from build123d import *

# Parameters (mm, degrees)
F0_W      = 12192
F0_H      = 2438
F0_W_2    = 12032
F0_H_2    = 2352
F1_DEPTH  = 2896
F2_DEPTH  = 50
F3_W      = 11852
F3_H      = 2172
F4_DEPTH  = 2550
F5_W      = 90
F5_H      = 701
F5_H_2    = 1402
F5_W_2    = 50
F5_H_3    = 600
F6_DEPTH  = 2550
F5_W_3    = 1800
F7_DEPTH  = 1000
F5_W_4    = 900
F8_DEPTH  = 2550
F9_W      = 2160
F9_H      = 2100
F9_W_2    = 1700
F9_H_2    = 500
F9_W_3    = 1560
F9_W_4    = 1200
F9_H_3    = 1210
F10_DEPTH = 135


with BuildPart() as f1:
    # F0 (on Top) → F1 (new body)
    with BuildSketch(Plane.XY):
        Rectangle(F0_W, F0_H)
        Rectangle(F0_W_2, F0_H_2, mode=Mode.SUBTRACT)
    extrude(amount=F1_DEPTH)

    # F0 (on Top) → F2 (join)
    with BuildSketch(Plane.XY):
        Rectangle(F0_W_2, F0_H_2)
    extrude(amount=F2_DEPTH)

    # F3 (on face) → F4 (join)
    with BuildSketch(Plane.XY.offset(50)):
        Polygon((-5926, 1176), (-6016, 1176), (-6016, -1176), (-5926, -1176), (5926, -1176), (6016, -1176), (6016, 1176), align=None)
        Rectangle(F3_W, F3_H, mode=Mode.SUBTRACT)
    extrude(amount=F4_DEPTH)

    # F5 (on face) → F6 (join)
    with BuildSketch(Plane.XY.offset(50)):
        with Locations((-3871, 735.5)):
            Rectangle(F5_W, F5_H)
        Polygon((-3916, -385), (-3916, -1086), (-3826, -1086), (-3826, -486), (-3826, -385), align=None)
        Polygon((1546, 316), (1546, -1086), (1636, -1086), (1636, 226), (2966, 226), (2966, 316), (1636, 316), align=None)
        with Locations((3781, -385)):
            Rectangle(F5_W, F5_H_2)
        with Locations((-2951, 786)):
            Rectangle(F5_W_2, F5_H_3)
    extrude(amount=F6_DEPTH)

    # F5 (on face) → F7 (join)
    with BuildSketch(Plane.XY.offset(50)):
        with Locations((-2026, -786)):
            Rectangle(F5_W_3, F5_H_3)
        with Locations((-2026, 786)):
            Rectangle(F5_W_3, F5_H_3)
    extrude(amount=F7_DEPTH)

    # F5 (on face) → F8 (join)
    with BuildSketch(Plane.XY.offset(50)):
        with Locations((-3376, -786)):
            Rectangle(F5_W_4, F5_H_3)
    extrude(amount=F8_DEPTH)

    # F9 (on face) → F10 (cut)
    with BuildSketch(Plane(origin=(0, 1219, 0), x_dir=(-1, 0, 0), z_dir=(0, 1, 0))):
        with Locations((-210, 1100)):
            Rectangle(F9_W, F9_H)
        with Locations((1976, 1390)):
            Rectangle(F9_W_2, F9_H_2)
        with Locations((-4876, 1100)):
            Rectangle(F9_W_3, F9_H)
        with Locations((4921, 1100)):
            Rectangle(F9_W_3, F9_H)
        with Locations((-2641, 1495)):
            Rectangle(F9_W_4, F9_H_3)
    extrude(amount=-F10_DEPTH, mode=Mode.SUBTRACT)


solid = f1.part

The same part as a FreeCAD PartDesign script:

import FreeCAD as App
import Part
import Sketcher
from FreeCAD import Vector
Q = App.Units.Quantity

doc = App.newDocument("Part")
body = doc.addObject("PartDesign::Body", "Body")

sketch1 = body.newObject("Sketcher::SketchObject", "Sketch")
sketch1.AttachmentSupport = (doc.getObject("XY_Plane"), [""])
sketch1.MapMode = "FlatFace"
sketch1.addGeometry([
    Part.LineSegment(Vector(-6096, 1219, 0), Vector(-6096, -1219, 0)),
    Part.LineSegment(Vector(-6096, -1219, 0), Vector(6096, -1219, 0)),
    Part.LineSegment(Vector(6096, -1219, 0), Vector(6096, 1219, 0)),
    Part.LineSegment(Vector(6096, 1219, 0), Vector(-6096, 1219, 0)),
    Part.LineSegment(Vector(6016, -1176, 0), Vector(-6016, -1176, 0)),
    Part.LineSegment(Vector(-6016, -1176, 0), Vector(-6016, 1176, 0)),
    Part.LineSegment(Vector(-6016, 1176, 0), Vector(6016, 1176, 0)),
    Part.LineSegment(Vector(6016, 1176, 0), Vector(6016, -1176, 0)),
], False)
sketch1.addConstraint([
    Sketcher.Constraint("Coincident", 0, 2, 1, 1),
    Sketcher.Constraint("Coincident", 1, 2, 2, 1),
    Sketcher.Constraint("Coincident", 2, 2, 3, 1),
    Sketcher.Constraint("Coincident", 3, 2, 0, 1),
    Sketcher.Constraint("Coincident", 4, 2, 5, 1),
    Sketcher.Constraint("Coincident", 5, 2, 6, 1),
    Sketcher.Constraint("Coincident", 6, 2, 7, 1),
    Sketcher.Constraint("Coincident", 7, 2, 4, 1),
    Sketcher.Constraint("Vertical", 0),
    Sketcher.Constraint("Horizontal", 1),
    Sketcher.Constraint("Vertical", 2),
    Sketcher.Constraint("Horizontal", 3),
    Sketcher.Constraint("Horizontal", 4),
    Sketcher.Constraint("Vertical", 5),
    Sketcher.Constraint("Horizontal", 6),
    Sketcher.Constraint("Vertical", 7),
    Sketcher.Constraint("Symmetric", 0, 2, 2, 2, -1, 1),
    Sketcher.Constraint("Symmetric", 4, 2, 6, 2, -1, 1),
    Sketcher.Constraint("DistanceX", 1, 1, 1, 2, Q("12192 mm")),
    Sketcher.Constraint("DistanceX", 4, 2, 4, 1, Q("12032 mm")),
    Sketcher.Constraint("DistanceY", 0, 2, 0, 1, Q("2438 mm")),
    Sketcher.Constraint("DistanceY", 5, 1, 5, 2, Q("2352 mm")),
])
pad1 = body.newObject("PartDesign::Pad", "Pad")
pad1.Profile = sketch1
pad1.Length = 2896

sketch2 = body.newObject("Sketcher::SketchObject", "Sketch001")
sketch2.AttachmentSupport = (doc.getObject("XY_Plane"), [""])
sketch2.MapMode = "FlatFace"
sketch2.addGeometry([
    Part.LineSegment(Vector(-6016, 1176, 0), Vector(-6016, -1176, 0)),
    Part.LineSegment(Vector(-6016, -1176, 0), Vector(6016, -1176, 0)),
    Part.LineSegment(Vector(6016, -1176, 0), Vector(6016, 1176, 0)),
    Part.LineSegment(Vector(6016, 1176, 0), Vector(-6016, 1176, 0)),
], False)
sketch2.addConstraint([
    Sketcher.Constraint("Coincident", 0, 2, 1, 1),
    Sketcher.Constraint("Coincident", 1, 2, 2, 1),
    Sketcher.Constraint("Coincident", 2, 2, 3, 1),
    Sketcher.Constraint("Coincident", 3, 2, 0, 1),
    Sketcher.Constraint("Vertical", 0),
    Sketcher.Constraint("Horizontal", 1),
    Sketcher.Constraint("Vertical", 2),
    Sketcher.Constraint("Horizontal", 3),
    Sketcher.Constraint("Symmetric", 0, 2, 2, 2, -1, 1),
    Sketcher.Constraint("DistanceX", 1, 1, 1, 2, Q("12032 mm")),
    Sketcher.Constraint("DistanceY", 0, 2, 0, 1, Q("2352 mm")),
])
pad2 = body.newObject("PartDesign::Pad", "Pad001")
pad2.Profile = sketch2
pad2.Length = 50

sketch3 = body.newObject("Sketcher::SketchObject", "Sketch002")
sketch3.AttachmentSupport = (doc.getObject("XY_Plane"), [""])
sketch3.MapMode = "FlatFace"
sketch3.AttachmentOffset = App.Placement(Vector(0, 0, 50), App.Rotation())
sketch3.addGeometry([
    Part.LineSegment(Vector(-6016, 1176, 0), Vector(-6016, -1176, 0)),
    Part.LineSegment(Vector(-6016, -1176, 0), Vector(6016, -1176, 0)),
    Part.LineSegment(Vector(6016, -1176, 0), Vector(6016, 1176, 0)),
    Part.LineSegment(Vector(6016, 1176, 0), Vector(-6016, 1176, 0)),
    Part.LineSegment(Vector(5926, -1086, 0), Vector(-5926, -1086, 0)),
    Part.LineSegment(Vector(-5926, -1086, 0), Vector(-5926, 1086, 0)),
    Part.LineSegment(Vector(-5926, 1086, 0), Vector(5926, 1086, 0)),
    Part.LineSegment(Vector(5926, 1086, 0), Vector(5926, -1086, 0)),
], False)
sketch3.addConstraint([
    Sketcher.Constraint("Coincident", 0, 2, 1, 1),
    Sketcher.Constraint("Coincident", 1, 2, 2, 1),
    Sketcher.Constraint("Coincident", 2, 2, 3, 1),
    Sketcher.Constraint("Coincident", 3, 2, 0, 1),
    Sketcher.Constraint("Coincident", 4, 2, 5, 1),
    Sketcher.Constraint("Coincident", 5, 2, 6, 1),
    Sketcher.Constraint("Coincident", 6, 2, 7, 1),
    Sketcher.Constraint("Coincident", 7, 2, 4, 1),
    Sketcher.Constraint("Vertical", 0),
    Sketcher.Constraint("Horizontal", 1),
    Sketcher.Constraint("Vertical", 2),
    Sketcher.Constraint("Horizontal", 3),
    Sketcher.Constraint("Horizontal", 4),
    Sketcher.Constraint("Vertical", 5),
    Sketcher.Constraint("Horizontal", 6),
    Sketcher.Constraint("Vertical", 7),
    Sketcher.Constraint("Symmetric", 0, 2, 2, 2, -1, 1),
    Sketcher.Constraint("Symmetric", 4, 2, 6, 2, -1, 1),
    Sketcher.Constraint("DistanceX", 1, 1, 1, 2, Q("12032 mm")),
    Sketcher.Constraint("DistanceX", 4, 2, 4, 1, Q("11852 mm")),
    Sketcher.Constraint("DistanceY", 0, 2, 0, 1, Q("2352 mm")),
    Sketcher.Constraint("DistanceY", 5, 1, 5, 2, Q("2172 mm")),
])
pad3 = body.newObject("PartDesign::Pad", "Pad002")
pad3.Profile = sketch3
pad3.Length = 2550

sketch4 = body.newObject("Sketcher::SketchObject", "Sketch003")
sketch4.AttachmentSupport = (doc.getObject("XY_Plane"), [""])
sketch4.MapMode = "FlatFace"
sketch4.AttachmentOffset = App.Placement(Vector(0, 0, 50), App.Rotation())
sketch4.addGeometry([
    Part.LineSegment(Vector(-3916, 1086, 0), Vector(-3916, 385, 0)),
    Part.LineSegment(Vector(-3916, 385, 0), Vector(-3826, 385, 0)),
    Part.LineSegment(Vector(-3826, 385, 0), Vector(-3826, 1086, 0)),
    Part.LineSegment(Vector(-3826, 1086, 0), Vector(-3916, 1086, 0)),
    Part.LineSegment(Vector(-3916, -385, 0), Vector(-3916, -1086, 0)),
    Part.LineSegment(Vector(-3916, -1086, 0), Vector(-3826, -1086, 0)),
    Part.LineSegment(Vector(-3826, -1086, 0), Vector(-3826, -385, 0)),
    Part.LineSegment(Vector(-3826, -385, 0), Vector(-3916, -385, 0)),
    Part.LineSegment(Vector(1546, 316, 0), Vector(1546, -1086, 0)),
    Part.LineSegment(Vector(1546, -1086, 0), Vector(1636, -1086, 0)),
    Part.LineSegment(Vector(1636, -1086, 0), Vector(1636, 226, 0)),
    Part.LineSegment(Vector(1636, 226, 0), Vector(2966, 226, 0)),
    Part.LineSegment(Vector(2966, 226, 0), Vector(2966, 316, 0)),
    Part.LineSegment(Vector(2966, 316, 0), Vector(1546, 316, 0)),
    Part.LineSegment(Vector(3736, 316, 0), Vector(3736, -1086, 0)),
    Part.LineSegment(Vector(3736, -1086, 0), Vector(3826, -1086, 0)),
    Part.LineSegment(Vector(3826, -1086, 0), Vector(3826, 316, 0)),
    Part.LineSegment(Vector(3826, 316, 0), Vector(3736, 316, 0)),
    Part.LineSegment(Vector(-2976, 1086, 0), Vector(-2976, 486, 0)),
    Part.LineSegment(Vector(-2976, 486, 0), Vector(-2926, 486, 0)),
    Part.LineSegment(Vector(-2926, 486, 0), Vector(-2926, 1086, 0)),
    Part.LineSegment(Vector(-2926, 1086, 0), Vector(-2976, 1086, 0)),
], False)
sketch4.addConstraint([
    Sketcher.Constraint("Coincident", 0, 2, 1, 1),
    Sketcher.Constraint("Coincident", 1, 2, 2, 1),
    Sketcher.Constraint("Coincident", 2, 2, 3, 1),
    Sketcher.Constraint("Coincident", 3, 2, 0, 1),
    Sketcher.Constraint("Coincident", 4, 2, 5, 1),
    Sketcher.Constraint("Coincident", 5, 2, 6, 1),
    Sketcher.Constraint("Coincident", 6, 2, 7, 1),
    Sketcher.Constraint("Coincident", 7, 2, 4, 1),
    Sketcher.Constraint("Coincident", 8, 2, 9, 1),
    Sketcher.Constraint("Coincident", 9, 2, 10, 1),
    Sketcher.Constraint("Coincident", 10, 2, 11, 1),
    Sketcher.Constraint("Coincident", 11, 2, 12, 1),
    Sketcher.Constraint("Coincident", 12, 2, 13, 1),
    Sketcher.Constraint("Coincident", 13, 2, 8, 1),
    Sketcher.Constraint("Coincident", 14, 2, 15, 1),
    Sketcher.Constraint("Coincident", 15, 2, 16, 1),
    Sketcher.Constraint("Coincident", 16, 2, 17, 1),
    Sketcher.Constraint("Coincident", 17, 2, 14, 1),
    Sketcher.Constraint("Coincident", 18, 2, 19, 1),
    Sketcher.Constraint("Coincident", 19, 2, 20, 1),
    Sketcher.Constraint("Coincident", 20, 2, 21, 1),
    Sketcher.Constraint("Coincident", 21, 2, 18, 1),
    Sketcher.Constraint("Vertical", 0),
    Sketcher.Constraint("Horizontal", 1),
    Sketcher.Constraint("Vertical", 2),
    Sketcher.Constraint("Horizontal", 3),
    Sketcher.Constraint("Vertical", 4),
    Sketcher.Constraint("Horizontal", 5),
    Sketcher.Constraint("Vertical", 6),
    Sketcher.Constraint("Horizontal", 7),
    Sketcher.Constraint("Vertical", 8),
    Sketcher.Constraint("Horizontal", 9),
    Sketcher.Constraint("Vertical", 10),
    Sketcher.Constraint("Horizontal", 11),
    Sketcher.Constraint("Vertical", 12),
    Sketcher.Constraint("Horizontal", 13),
    Sketcher.Constraint("Vertical", 14),
    Sketcher.Constraint("Horizontal", 15),
    Sketcher.Constraint("Vertical", 16),
    Sketcher.Constraint("Horizontal", 17),
    Sketcher.Constraint("Vertical", 18),
    Sketcher.Constraint("Horizontal", 19),
    Sketcher.Constraint("Vertical", 20),
    Sketcher.Constraint("Horizontal", 21),
    Sketcher.Constraint("Symmetric", 2, 2, 15, 2, -1, 1),
    Sketcher.Constraint("Symmetric", 5, 2, 15, 2, -2),
    Sketcher.Constraint("Symmetric", 0, 2, 7, 2, -1),
    Sketcher.Constraint("Horizontal", 5, 2, 8, 2),
    Sketcher.Constraint("Horizontal", 13, 2, 16, 2),
    Sketcher.Constraint("Horizontal", 3, 2, 20, 2),
    Sketcher.Constraint("Equal", 7, 9),
    Sketcher.Constraint("Equal", 9, 15),
    Sketcher.Constraint("Equal", 17, 12),
    Sketcher.Constraint("DistanceX", 1, 1, 1, 2, Q("90 mm")),
    Sketcher.Constraint("DistanceX", 11, 1, 11, 2, Q("1330 mm")),
    Sketcher.Constraint("DistanceX", 19, 1, 19, 2, Q("50 mm")),
    Sketcher.Constraint("DistanceY", 0, 2, 0, 1, Q("701 mm")),
    Sketcher.Constraint("DistanceY", 8, 2, 8, 1, Q("1402 mm")),
    Sketcher.Constraint("DistanceY", 18, 2, 18, 1, Q("600 mm")),
    Sketcher.Constraint("DistanceX", 0, 2, -1, 1, Q("3916 mm")),
    Sketcher.Constraint("DistanceY", -1, 1, 0, 2, Q("385 mm")),
    Sketcher.Constraint("DistanceX", -1, 1, 8, 2, Q("1546 mm")),
    Sketcher.Constraint("DistanceX", 18, 2, -1, 1, Q("2976 mm")),
])
pad4 = body.newObject("PartDesign::Pad", "Pad003")
pad4.Profile = sketch4
pad4.Length = 2550

sketch5 = body.newObject("Sketcher::SketchObject", "Sketch004")
sketch5.AttachmentSupport = (doc.getObject("XY_Plane"), [""])
sketch5.MapMode = "FlatFace"
sketch5.AttachmentOffset = App.Placement(Vector(0, 0, 50), App.Rotation())
sketch5.addGeometry([
    Part.LineSegment(Vector(-2926, -486, 0), Vector(-2926, -1086, 0)),
    Part.LineSegment(Vector(-2926, -1086, 0), Vector(-1126, -1086, 0)),
    Part.LineSegment(Vector(-1126, -1086, 0), Vector(-1126, -486, 0)),
    Part.LineSegment(Vector(-1126, -486, 0), Vector(-2926, -486, 0)),
    Part.LineSegment(Vector(-2926, 1086, 0), Vector(-2926, 486, 0)),
    Part.LineSegment(Vector(-2926, 486, 0), Vector(-1126, 486, 0)),
    Part.LineSegment(Vector(-1126, 486, 0), Vector(-1126, 1086, 0)),
    Part.LineSegment(Vector(-1126, 1086, 0), Vector(-2926, 1086, 0)),
], False)
sketch5.addConstraint([
    Sketcher.Constraint("Coincident", 0, 2, 1, 1),
    Sketcher.Constraint("Coincident", 1, 2, 2, 1),
    Sketcher.Constraint("Coincident", 2, 2, 3, 1),
    Sketcher.Constraint("Coincident", 3, 2, 0, 1),
    Sketcher.Constraint("Coincident", 4, 2, 5, 1),
    Sketcher.Constraint("Coincident", 5, 2, 6, 1),
    Sketcher.Constraint("Coincident", 6, 2, 7, 1),
    Sketcher.Constraint("Coincident", 7, 2, 4, 1),
    Sketcher.Constraint("Vertical", 0),
    Sketcher.Constraint("Horizontal", 1),
    Sketcher.Constraint("Vertical", 2),
    Sketcher.Constraint("Horizontal", 3),
    Sketcher.Constraint("Vertical", 4),
    Sketcher.Constraint("Horizontal", 5),
    Sketcher.Constraint("Vertical", 6),
    Sketcher.Constraint("Horizontal", 7),
    Sketcher.Constraint("Symmetric", 3, 2, 4, 2, -1),
    Sketcher.Constraint("Symmetric", 1, 2, 6, 2, -1),
    Sketcher.Constraint("DistanceX", 1, 1, 1, 2, Q("1800 mm")),
    Sketcher.Constraint("DistanceY", 0, 2, 0, 1, Q("600 mm")),
    Sketcher.Constraint("DistanceX", 0, 2, -1, 1, Q("2926 mm")),
    Sketcher.Constraint("DistanceY", 0, 2, -1, 1, Q("1086 mm")),
])
pad5 = body.newObject("PartDesign::Pad", "Pad004")
pad5.Profile = sketch5
pad5.Length = 1000

sketch6 = body.newObject("Sketcher::SketchObject", "Sketch005")
sketch6.AttachmentSupport = (doc.getObject("XY_Plane"), [""])
sketch6.MapMode = "FlatFace"
sketch6.AttachmentOffset = App.Placement(Vector(0, 0, 50), App.Rotation())
sketch6.addGeometry([
    Part.LineSegment(Vector(-3826, -486, 0), Vector(-3826, -1086, 0)),
    Part.LineSegment(Vector(-3826, -1086, 0), Vector(-2926, -1086, 0)),
    Part.LineSegment(Vector(-2926, -1086, 0), Vector(-2926, -486, 0)),
    Part.LineSegment(Vector(-2926, -486, 0), Vector(-3826, -486, 0)),
], False)
sketch6.addConstraint([
    Sketcher.Constraint("Coincident", 0, 2, 1, 1),
    Sketcher.Constraint("Coincident", 1, 2, 2, 1),
    Sketcher.Constraint("Coincident", 2, 2, 3, 1),
    Sketcher.Constraint("Coincident", 3, 2, 0, 1),
    Sketcher.Constraint("Vertical", 0),
    Sketcher.Constraint("Horizontal", 1),
    Sketcher.Constraint("Vertical", 2),
    Sketcher.Constraint("Horizontal", 3),
    Sketcher.Constraint("DistanceX", 1, 1, 1, 2, Q("900 mm")),
    Sketcher.Constraint("DistanceY", 0, 2, 0, 1, Q("600 mm")),
    Sketcher.Constraint("DistanceX", 0, 2, -1, 1, Q("3826 mm")),
    Sketcher.Constraint("DistanceY", 0, 2, -1, 1, Q("1086 mm")),
])
pad6 = body.newObject("PartDesign::Pad", "Pad005")
pad6.Profile = sketch6
pad6.Length = 2550

sketch7 = body.newObject("Sketcher::SketchObject", "Sketch006")
sketch7.AttachmentSupport = (doc.getObject("XZ_Plane"), [""])
sketch7.MapMode = "FlatFace"
sketch7.AttachmentOffset = App.Placement(Vector(0, 0, -1219), App.Rotation())
sketch7.addGeometry([
    Part.LineSegment(Vector(1290, 2150, 0), Vector(1290, 50, 0)),
    Part.LineSegment(Vector(1290, 50, 0), Vector(-870, 50, 0)),
    Part.LineSegment(Vector(-870, 50, 0), Vector(-870, 2150, 0)),
    Part.LineSegment(Vector(-870, 2150, 0), Vector(1290, 2150, 0)),
    Part.LineSegment(Vector(-1126, 1640, 0), Vector(-1126, 1140, 0)),
    Part.LineSegment(Vector(-1126, 1140, 0), Vector(-2826, 1140, 0)),
    Part.LineSegment(Vector(-2826, 1140, 0), Vector(-2826, 1640, 0)),
    Part.LineSegment(Vector(-2826, 1640, 0), Vector(-1126, 1640, 0)),
    Part.LineSegment(Vector(5656, 2150, 0), Vector(5656, 50, 0)),
    Part.LineSegment(Vector(5656, 50, 0), Vector(4096, 50, 0)),
    Part.LineSegment(Vector(4096, 50, 0), Vector(4096, 2150, 0)),
    Part.LineSegment(Vector(4096, 2150, 0), Vector(5656, 2150, 0)),
    Part.LineSegment(Vector(-4141, 2150, 0), Vector(-4141, 50, 0)),
    Part.LineSegment(Vector(-4141, 50, 0), Vector(-5701, 50, 0)),
    Part.LineSegment(Vector(-5701, 50, 0), Vector(-5701, 2150, 0)),
    Part.LineSegment(Vector(-5701, 2150, 0), Vector(-4141, 2150, 0)),
    Part.LineSegment(Vector(3241, 2100, 0), Vector(3241, 890, 0)),
    Part.LineSegment(Vector(3241, 890, 0), Vector(2041, 890, 0)),
    Part.LineSegment(Vector(2041, 890, 0), Vector(2041, 2100, 0)),
    Part.LineSegment(Vector(2041, 2100, 0), Vector(3241, 2100, 0)),
], False)
sketch7.addConstraint([
    Sketcher.Constraint("Coincident", 0, 2, 1, 1),
    Sketcher.Constraint("Coincident", 1, 2, 2, 1),
    Sketcher.Constraint("Coincident", 2, 2, 3, 1),
    Sketcher.Constraint("Coincident", 3, 2, 0, 1),
    Sketcher.Constraint("Coincident", 4, 2, 5, 1),
    Sketcher.Constraint("Coincident", 5, 2, 6, 1),
    Sketcher.Constraint("Coincident", 6, 2, 7, 1),
    Sketcher.Constraint("Coincident", 7, 2, 4, 1),
    Sketcher.Constraint("Coincident", 8, 2, 9, 1),
    Sketcher.Constraint("Coincident", 9, 2, 10, 1),
    Sketcher.Constraint("Coincident", 10, 2, 11, 1),
    Sketcher.Constraint("Coincident", 11, 2, 8, 1),
    Sketcher.Constraint("Coincident", 12, 2, 13, 1),
    Sketcher.Constraint("Coincident", 13, 2, 14, 1),
    Sketcher.Constraint("Coincident", 14, 2, 15, 1),
    Sketcher.Constraint("Coincident", 15, 2, 12, 1),
    Sketcher.Constraint("Coincident", 16, 2, 17, 1),
    Sketcher.Constraint("Coincident", 17, 2, 18, 1),
    Sketcher.Constraint("Coincident", 18, 2, 19, 1),
    Sketcher.Constraint("Coincident", 19, 2, 16, 1),
    Sketcher.Constraint("Vertical", 0),
    Sketcher.Constraint("Horizontal", 1),
    Sketcher.Constraint("Vertical", 2),
    Sketcher.Constraint("Horizontal", 3),
    Sketcher.Constraint("Vertical", 4),
    Sketcher.Constraint("Horizontal", 5),
    Sketcher.Constraint("Vertical", 6),
    Sketcher.Constraint("Horizontal", 7),
    Sketcher.Constraint("Vertical", 8),
    Sketcher.Constraint("Horizontal", 9),
    Sketcher.Constraint("Vertical", 10),
    Sketcher.Constraint("Horizontal", 11),
    Sketcher.Constraint("Vertical", 12),
    Sketcher.Constraint("Horizontal", 13),
    Sketcher.Constraint("Vertical", 14),
    Sketcher.Constraint("Horizontal", 15),
    Sketcher.Constraint("Vertical", 16),
    Sketcher.Constraint("Horizontal", 17),
    Sketcher.Constraint("Vertical", 18),
    Sketcher.Constraint("Horizontal", 19),
    Sketcher.Constraint("Horizontal", 1, 2, 8, 2),
    Sketcher.Constraint("Horizontal", 3, 2, 10, 2),
    Sketcher.Constraint("Horizontal", 9, 2, 12, 2),
    Sketcher.Constraint("Horizontal", 11, 2, 14, 2),
    Sketcher.Constraint("Equal", 11, 13),
    Sketcher.Constraint("DistanceX", 1, 2, 1, 1, Q("2160 mm")),
    Sketcher.Constraint("DistanceX", 5, 2, 5, 1, Q("1700 mm")),
    Sketcher.Constraint("DistanceX", 9, 2, 9, 1, Q("1560 mm")),
    Sketcher.Constraint("DistanceX", 17, 2, 17, 1, Q("1200 mm")),
    Sketcher.Constraint("DistanceY", 0, 2, 0, 1, Q("2100 mm")),
    Sketcher.Constraint("DistanceY", 4, 2, 4, 1, Q("500 mm")),
    Sketcher.Constraint("DistanceY", 16, 2, 16, 1, Q("1210 mm")),
    Sketcher.Constraint("DistanceX", -1, 1, 0, 2, Q("1290 mm")),
    Sketcher.Constraint("DistanceY", -1, 1, 0, 2, Q("50 mm")),
    Sketcher.Constraint("DistanceX", 4, 2, -1, 1, Q("1126 mm")),
    Sketcher.Constraint("DistanceY", -1, 1, 4, 2, Q("1140 mm")),
    Sketcher.Constraint("DistanceX", -1, 1, 8, 2, Q("5656 mm")),
    Sketcher.Constraint("DistanceX", 12, 2, -1, 1, Q("4141 mm")),
    Sketcher.Constraint("DistanceX", -1, 1, 16, 2, Q("3241 mm")),
    Sketcher.Constraint("DistanceY", -1, 1, 16, 2, Q("890 mm")),
])
pocket1 = body.newObject("PartDesign::Pocket", "Pocket")
pocket1.Profile = sketch7
pocket1.Length = 135
pocket1.Reversed = True

doc.recompute()
